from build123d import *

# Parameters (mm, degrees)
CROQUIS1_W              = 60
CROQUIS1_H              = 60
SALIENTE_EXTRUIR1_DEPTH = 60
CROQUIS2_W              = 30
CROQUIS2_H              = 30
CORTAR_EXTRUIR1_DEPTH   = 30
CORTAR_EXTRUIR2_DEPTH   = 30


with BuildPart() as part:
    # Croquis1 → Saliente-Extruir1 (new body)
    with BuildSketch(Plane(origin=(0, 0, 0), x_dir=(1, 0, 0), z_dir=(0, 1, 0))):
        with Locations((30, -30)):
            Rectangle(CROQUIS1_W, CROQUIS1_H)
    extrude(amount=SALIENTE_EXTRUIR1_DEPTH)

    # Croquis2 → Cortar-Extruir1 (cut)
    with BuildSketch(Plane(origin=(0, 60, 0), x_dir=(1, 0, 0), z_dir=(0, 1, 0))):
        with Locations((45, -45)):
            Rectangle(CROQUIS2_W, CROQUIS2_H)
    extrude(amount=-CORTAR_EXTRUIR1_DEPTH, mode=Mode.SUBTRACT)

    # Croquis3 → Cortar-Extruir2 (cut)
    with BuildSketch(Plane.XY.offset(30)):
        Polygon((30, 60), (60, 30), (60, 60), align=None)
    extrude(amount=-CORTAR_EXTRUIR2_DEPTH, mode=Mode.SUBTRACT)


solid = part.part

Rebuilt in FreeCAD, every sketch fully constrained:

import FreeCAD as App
import Part
import Sketcher
from FreeCAD import Vector
Q = App.Units.Quantity

doc = App.newDocument("Part")
body = doc.addObject("PartDesign::Body", "Body")

# Sketch on XZ plane
sketch1 = doc.addObject("Sketcher::SketchObject", "Sketch")
body.addObject(sketch1)
sketch1.AttachmentSupport = (doc.XZ_Plane, [""])
sketch1.MapMode = "FlatFace"
sketch1.addGeometry([
    Part.LineSegment(Vector(0, 0, 0), Vector(0, 60, 0)),
    Part.LineSegment(Vector(0, 60, 0), Vector(60, 60, 0)),
    Part.LineSegment(Vector(60, 60, 0), Vector(60, 0, 0)),
    Part.LineSegment(Vector(60, 0, 0), Vector(0, 0, 0)),
], False)
sketch1.addConstraint([
    Sketcher.Constraint("Coincident", 0, 2, 1, 1),
    Sketcher.Constraint("Coincident", 1, 2, 2, 1),
    Sketcher.Constraint("Coincident", 2, 2, 3, 1),
    Sketcher.Constraint("Coincident", 3, 2, 0, 1),
    Sketcher.Constraint("Vertical", 0),
    Sketcher.Constraint("Horizontal", 1),
    Sketcher.Constraint("Vertical", 2),
    Sketcher.Constraint("Horizontal", 3),
    Sketcher.Constraint("Coincident", 3, 2, -1, 1),
    Sketcher.Constraint("Equal", 3, 0),
    Sketcher.Constraint("DistanceX", 1, 1, 1, 2, Q("60 mm")),
])
pad1 = doc.addObject("PartDesign::Pad", "Pad")
body.addObject(pad1)
pad1.Profile = sketch1
pad1.Length = 60
pad1.Reversed = True

# Sketch on XZ plane
sketch2 = doc.addObject("Sketcher::SketchObject", "Sketch001")
body.addObject(sketch2)
sketch2.AttachmentSupport = (doc.XZ_Plane, [""])
sketch2.MapMode = "FlatFace"
sketch2.AttachmentOffset = App.Placement(Vector(0, 0, -60), App.Rotation())
sketch2.addGeometry([
    Part.LineSegment(Vector(30, 30, 0), Vector(30, 60, 0)),
    Part.LineSegment(Vector(30, 60, 0), Vector(60, 60, 0)),
    Part.LineSegment(Vector(60, 60, 0), Vector(60, 30, 0)),
    Part.LineSegment(Vector(60, 30, 0), Vector(30, 30, 0)),
], False)
sketch2.addConstraint([
    Sketcher.Constraint("Coincident", 0, 2, 1, 1),
    Sketcher.Constraint("Coincident", 1, 2, 2, 1),
    Sketcher.Constraint("Coincident", 2, 2, 3, 1),
    Sketcher.Constraint("Coincident", 3, 2, 0, 1),
    Sketcher.Constraint("Vertical", 0),
    Sketcher.Constraint("Horizontal", 1),
    Sketcher.Constraint("Vertical", 2),
    Sketcher.Constraint("Horizontal", 3),
    Sketcher.Constraint("Equal", 3, 0),
    Sketcher.Constraint("DistanceX", 1, 1, 1, 2, Q("30 mm")),
    Sketcher.Constraint("DistanceX", -1, 1, 0, 2, Q("30 mm")),
    Sketcher.Constraint("DistanceY", -1, 1, 0, 2, Q("60 mm")),
])
pocket1 = doc.addObject("PartDesign::Pocket", "Pocket")
body.addObject(pocket1)
pocket1.Profile = sketch2
pocket1.Length = 30
pocket1.Reversed = True

# Sketch on XY plane
sketch3 = doc.addObject("Sketcher::SketchObject", "Sketch002")
body.addObject(sketch3)
sketch3.AttachmentSupport = (doc.XY_Plane, [""])
sketch3.MapMode = "FlatFace"
sketch3.AttachmentOffset = App.Placement(Vector(0, 0, 30), App.Rotation())
sketch3.addGeometry([
    Part.LineSegment(Vector(30, 60, 0), Vector(60, 30, 0)),
    Part.LineSegment(Vector(60, 30, 0), Vector(60, 60, 0)),
    Part.LineSegment(Vector(60, 60, 0), Vector(30, 60, 0)),
], False)
sketch3.addConstraint([
    Sketcher.Constraint("Coincident", 0, 2, 1, 1),
    Sketcher.Constraint("Coincident", 1, 2, 2, 1),
    Sketcher.Constraint("Coincident", 2, 2, 0, 1),
    Sketcher.Constraint("Vertical", 1),
    Sketcher.Constraint("Horizontal", 2),
    Sketcher.Constraint("Equal", 2, 1),
    Sketcher.Constraint("DistanceX", 2, 2, 2, 1, Q("30 mm")),
    Sketcher.Constraint("DistanceX", -1, 1, 0, 2, Q("60 mm")),
    Sketcher.Constraint("DistanceY", -1, 1, 0, 2, Q("30 mm")),
])
pocket2 = doc.addObject("PartDesign::Pocket", "Pocket001")
body.addObject(pocket2)
pocket2.Profile = sketch3
pocket2.Length = 30

doc.recompute()
